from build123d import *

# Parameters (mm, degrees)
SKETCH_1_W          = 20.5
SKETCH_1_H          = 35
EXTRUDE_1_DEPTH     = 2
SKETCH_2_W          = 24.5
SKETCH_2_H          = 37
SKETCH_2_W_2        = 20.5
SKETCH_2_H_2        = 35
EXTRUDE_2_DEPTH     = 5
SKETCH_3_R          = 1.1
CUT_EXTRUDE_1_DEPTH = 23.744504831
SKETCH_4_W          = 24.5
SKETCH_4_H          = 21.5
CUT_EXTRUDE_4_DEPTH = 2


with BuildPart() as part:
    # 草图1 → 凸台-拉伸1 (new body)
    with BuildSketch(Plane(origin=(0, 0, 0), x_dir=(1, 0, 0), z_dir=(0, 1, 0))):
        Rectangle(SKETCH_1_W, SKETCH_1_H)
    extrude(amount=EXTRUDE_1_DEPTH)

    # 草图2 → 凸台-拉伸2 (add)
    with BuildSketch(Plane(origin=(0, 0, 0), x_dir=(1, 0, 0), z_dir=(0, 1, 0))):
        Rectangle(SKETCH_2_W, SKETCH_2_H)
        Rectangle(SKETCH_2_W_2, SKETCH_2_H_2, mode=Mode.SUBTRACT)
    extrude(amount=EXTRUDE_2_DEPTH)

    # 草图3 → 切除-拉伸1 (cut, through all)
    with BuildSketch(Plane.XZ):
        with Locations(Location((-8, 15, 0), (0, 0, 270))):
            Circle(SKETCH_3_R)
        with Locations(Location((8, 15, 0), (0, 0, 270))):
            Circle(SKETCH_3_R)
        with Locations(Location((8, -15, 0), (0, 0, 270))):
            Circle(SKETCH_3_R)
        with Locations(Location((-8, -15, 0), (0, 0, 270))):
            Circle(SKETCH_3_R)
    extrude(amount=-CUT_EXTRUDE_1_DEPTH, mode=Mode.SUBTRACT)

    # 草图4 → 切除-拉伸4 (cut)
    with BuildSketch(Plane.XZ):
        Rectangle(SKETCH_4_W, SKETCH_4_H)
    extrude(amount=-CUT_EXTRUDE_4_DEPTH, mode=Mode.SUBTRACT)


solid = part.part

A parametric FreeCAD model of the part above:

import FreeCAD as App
import Part
import Sketcher

V = App.Vector

doc = App.newDocument("Part")
body = doc.addObject("PartDesign::Body", "Body")

# Sketch on XZ plane
sketch1 = body.newObject("Sketcher::SketchObject", "Sketch")
sketch1.AttachmentSupport = (doc.getObject("XZ_Plane"), [""])
sketch1.MapMode = "FlatFace"
sketch1.addGeometry([
    Part.LineSegment(V(-10, -18, 0), V(-10, 18, 0)),
    Part.LineSegment(V(-10, 18, 0), V(10, 18, 0)),
    Part.LineSegment(V(10, 18, 0), V(10, -18, 0)),
    Part.LineSegment(V(10, -18, 0), V(-10, -18, 0)),
], False)
sketch1.addConstraint([
    Sketcher.Constraint("Coincident", 0, 2, 1, 1),
    Sketcher.Constraint("Coincident", 1, 2, 2, 1),
    Sketcher.Constraint("Coincident", 2, 2, 3, 1),
    Sketcher.Constraint("Coincident", 3, 2, 0, 1),
    Sketcher.Constraint("Vertical", 0),
    Sketcher.Constraint("Horizontal", 1),
    Sketcher.Constraint("Vertical", 2),
    Sketcher.Constraint("Horizontal", 3),
    Sketcher.Constraint("Symmetric", 0, 2, 2, 2, -1, 1),
    Sketcher.Constraint("DistanceY", 0, 1, 0, 2, 35.0),
    Sketcher.Constraint("DistanceX", 1, 1, 1, 2, 20.5),
])
pad1 = body.newObject("PartDesign::Pad", "Pad")
pad1.Profile = sketch1
pad1.Length = 2
pad1.Reversed = True

# Sketch on XZ plane
sketch2 = body.newObject("Sketcher::SketchObject", "Sketch001")
sketch2.AttachmentSupport = (doc.getObject("XZ_Plane"), [""])
sketch2.MapMode = "FlatFace"
sketch2.addGeometry([
    Part.LineSegment(V(-12, -18, 0), V(-12, 18, 0)),  # 0
    Part.LineSegment(V(-12, 18, 0), V(12, 18, 0)),  # 1
    Part.LineSegment(V(12, 18, 0), V(12, -18, 0)),  # 2
    Part.LineSegment(V(12, -18, 0), V(-12, -18, 0)),  # 3
    Part.LineSegment(V(10, 18, 0), V(-10, 18, 0)),  # 4
    Part.LineSegment(V(-10, 18, 0), V(-10, -18, 0)),  # 5
    Part.LineSegment(V(-10, -18, 0), V(10, -18, 0)),  # 6
    Part.LineSegment(V(10, -18, 0), V(10, 18, 0)),  # 7
], False)
sketch2.addConstraint([
    Sketcher.Constraint("Coincident", 0, 2, 1, 1),
    Sketcher.Constraint("Coincident", 1, 2, 2, 1),
    Sketcher.Constraint("Coincident", 2, 2, 3, 1),
    Sketcher.Constraint("Coincident", 3, 2, 0, 1),
    Sketcher.Constraint("Coincident", 4, 2, 5, 1),
    Sketcher.Constraint("Coincident", 5, 2, 6, 1),
    Sketcher.Constraint("Coincident", 6, 2, 7, 1),
    Sketcher.Constraint("Coincident", 7, 2, 4, 1),
    Sketcher.Constraint("Vertical", 0),
    Sketcher.Constraint("Horizontal", 1),
    Sketcher.Constraint("Vertical", 2),
    Sketcher.Constraint("Horizontal", 3),
    Sketcher.Constraint("Horizontal", 4),
    Sketcher.Constraint("Vertical", 5),
    Sketcher.Constraint("Horizontal", 6),
    Sketcher.Constraint("Vertical", 7),
    Sketcher.Constraint("Symmetric", 0, 2, 2, 2, -1, 1),
    Sketcher.Constraint("Symmetric", 4, 2, 6, 2, -1, 1),
    Sketcher.Constraint("DistanceY", 0, 1, 0, 2, 37.0),
    Sketcher.Constraint("DistanceY", 5, 2, 5, 1, 35.0),
    Sketcher.Constraint("DistanceX", 1, 1, 1, 2, 24.5),
    Sketcher.Constraint("DistanceX", 4, 2, 4, 1, 20.5),
])
pad2 = body.newObject("PartDesign::Pad", "Pad001")
pad2.Profile = sketch2
pad2.Length = 5
pad2.Reversed = True

# Sketch on XZ plane
sketch3 = body.newObject("Sketcher::SketchObject", "Sketch002")
sketch3.AttachmentSupport = (doc.getObject("XZ_Plane"), [""])
sketch3.MapMode = "FlatFace"
sketch3.addGeometry([
    Part.Circle(V(-8, 15, 0), V(0, 0, 1), 1.1),
    Part.Circle(V(8, 15, 0), V(0, 0, 1), 1.1),
    Part.Circle(V(8, -15, 0), V(0, 0, 1), 1.1),
    Part.Circle(V(-8, -15, 0), V(0, 0, 1), 1.1),
], False)
sketch3.addConstraint([
    Sketcher.Constraint("Equal", 0, 1),
    Sketcher.Constraint("Equal", 1, 2),
    Sketcher.Constraint("Equal", 2, 3),
    Sketcher.Constraint("Symmetric", 0, 3, 2, 3, -1, 1),
    Sketcher.Constraint("Symmetric", 1, 3, 3, 3, -1, 1),
    Sketcher.Constraint("Symmetric", 0, 3, 1, 3, -2),
    Sketcher.Constraint("Diameter", 0, 2.2),
    Sketcher.Constraint("DistanceX", 0, 3, -1, 1, 8.0),
    Sketcher.Constraint("DistanceY", -1, 1, 0, 3, 15.0),
])
pocket1 = body.newObject("PartDesign::Pocket", "Pocket")
pocket1.Profile = sketch3
pocket1.Type = "ThroughAll"

# Sketch on XZ plane
sketch4 = body.newObject("Sketcher::SketchObject", "Sketch003")
sketch4.AttachmentSupport = (doc.getObject("XZ_Plane"), [""])
sketch4.MapMode = "FlatFace"
sketch4.addGeometry([
    Part.LineSegment(V(-12, 11, 0), V(-12, -11, 0)),
    Part.LineSegment(V(-12, -11, 0), V(12, -11, 0)),
    Part.LineSegment(V(12, -11, 0), V(12, 11, 0)),
    Part.LineSegment(V(12, 11, 0), V(-12, 11, 0)),
], False)
sketch4.addConstraint([
    Sketcher.Constraint("Coincident", 0, 2, 1, 1),
    Sketcher.Constraint("Coincident", 1, 2, 2, 1),
    Sketcher.Constraint("Coincident", 2, 2, 3, 1),
    Sketcher.Constraint("Coincident", 3, 2, 0, 1),
    Sketcher.Constraint("Vertical", 0),
    Sketcher.Constraint("Horizontal", 1),
    Sketcher.Constraint("Vertical", 2),
    Sketcher.Constraint("Horizontal", 3),
    Sketcher.Constraint("Symmetric", 0, 2, 2, 2, -1, 1),
    Sketcher.Constraint("DistanceX", 1, 1, 1, 2, 24.5),
    Sketcher.Constraint("DistanceY", 0, 2, 0, 1, 21.5),
])
pocket2 = body.newObject("PartDesign::Pocket", "Pocket001")
pocket2.Profile = sketch4
pocket2.Length = 2

doc.recompute()
